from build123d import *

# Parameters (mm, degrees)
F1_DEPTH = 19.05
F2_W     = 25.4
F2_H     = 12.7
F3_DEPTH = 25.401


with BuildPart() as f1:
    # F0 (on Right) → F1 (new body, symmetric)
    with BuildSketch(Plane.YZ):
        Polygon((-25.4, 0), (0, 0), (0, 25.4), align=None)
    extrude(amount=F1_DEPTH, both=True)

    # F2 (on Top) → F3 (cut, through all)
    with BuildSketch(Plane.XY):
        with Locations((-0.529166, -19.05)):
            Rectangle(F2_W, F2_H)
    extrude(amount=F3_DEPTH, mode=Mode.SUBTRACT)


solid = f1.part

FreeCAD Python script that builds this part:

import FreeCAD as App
import Part
import Sketcher
from FreeCAD import Vector
Q = App.Units.Quantity

doc = App.newDocument("Part")
params = doc.addObject("Spreadsheet::Sheet", "Params")
for row, (alias, value) in enumerate([
    ("sketch1_width", "1 in"),
    ("pad1_length", "1.5 in"),
    ("sketch2_width", "1 in"),
    ("sketch2_height", "0.5 in"),
], start=1):
    params.set(f"A{row}", alias)
    params.set(f"B{row}", "=" + value)
    params.setAlias(f"B{row}", alias)

body = doc.addObject("PartDesign::Body", "Body")

# Sketch on YZ plane
sketch1 = doc.addObject("Sketcher::SketchObject", "Sketch")
body.addObject(sketch1)
sketch1.AttachmentSupport = (doc.YZ_Plane, [""])
sketch1.MapMode = "FlatFace"
sketch1.addGeometry([
    Part.LineSegment(Vector(-25, 0, 0), Vector(0, 0, 0)),
    Part.LineSegment(Vector(0, 0, 0), Vector(0, 25, 0)),
    Part.LineSegment(Vector(0, 25, 0), Vector(-25, 0, 0)),
], False)
sketch1.addConstraint([
    Sketcher.Constraint("Coincident", 0, 2, 1, 1),
    Sketcher.Constraint("Coincident", 1, 2, 2, 1),
    Sketcher.Constraint("Coincident", 2, 2, 0, 1),
    Sketcher.Constraint("Horizontal", 0),
    Sketcher.Constraint("Vertical", 1),
    Sketcher.Constraint("Coincident", 0, 2, -1, 1),
    Sketcher.Constraint("Equal", 0, 1),
    Sketcher.Constraint("DistanceX", 0, 1, 0, 2, Q("1 in")),
])
sketch1.setExpression("Constraints[7]", "Params.sketch1_width")
pad1 = doc.addObject("PartDesign::Pad", "Pad")
body.addObject(pad1)
pad1.Profile = sketch1
pad1.setExpression("Length", "Params.pad1_length")
pad1.Midplane = True

# Sketch on XY plane
sketch2 = doc.addObject("Sketcher::SketchObject", "Sketch001")
body.addObject(sketch2)
sketch2.AttachmentSupport = (doc.XY_Plane, [""])
sketch2.MapMode = "FlatFace"
sketch2.addGeometry([
    Part.LineSegment(Vector(-13, -13, 0), Vector(-13, -25, 0)),
    Part.LineSegment(Vector(-13, -25, 0), Vector(12, -25, 0)),
    Part.LineSegment(Vector(12, -25, 0), Vector(12, -13, 0)),
    Part.LineSegment(Vector(12, -13, 0), Vector(-13, -13, 0)),
], False)
sketch2.addConstraint([
    Sketcher.Constraint("Coincident", 0, 2, 1, 1),
    Sketcher.Constraint("Coincident", 1, 2, 2, 1),
    Sketcher.Constraint("Coincident", 2, 2, 3, 1),
    Sketcher.Constraint("Coincident", 3, 2, 0, 1),
    Sketcher.Constraint("Vertical", 0),
    Sketcher.Constraint("Horizontal", 1),
    Sketcher.Constraint("Vertical", 2),
    Sketcher.Constraint("Horizontal", 3),
    Sketcher.Constraint("DistanceX", 1, 1, 1, 2, Q("1 in")),
    Sketcher.Constraint("DistanceY", 0, 2, 0, 1, Q("0.5 in")),
    Sketcher.Constraint("DistanceY", 0, 2, -1, 1, Q("1 in")),
    Sketcher.Constraint("DistanceX", 0, 2, -1, 1, 13.229166),
])
sketch2.setExpression("Constraints[8]", "Params.sketch2_width")
sketch2.setExpression("Constraints[9]", "Params.sketch2_height")
pocket1 = doc.addObject("PartDesign::Pocket", "Pocket")
body.addObject(pocket1)
pocket1.Profile = sketch2
pocket1.Type = "ThroughAll"
pocket1.Reversed = True

doc.recompute()
